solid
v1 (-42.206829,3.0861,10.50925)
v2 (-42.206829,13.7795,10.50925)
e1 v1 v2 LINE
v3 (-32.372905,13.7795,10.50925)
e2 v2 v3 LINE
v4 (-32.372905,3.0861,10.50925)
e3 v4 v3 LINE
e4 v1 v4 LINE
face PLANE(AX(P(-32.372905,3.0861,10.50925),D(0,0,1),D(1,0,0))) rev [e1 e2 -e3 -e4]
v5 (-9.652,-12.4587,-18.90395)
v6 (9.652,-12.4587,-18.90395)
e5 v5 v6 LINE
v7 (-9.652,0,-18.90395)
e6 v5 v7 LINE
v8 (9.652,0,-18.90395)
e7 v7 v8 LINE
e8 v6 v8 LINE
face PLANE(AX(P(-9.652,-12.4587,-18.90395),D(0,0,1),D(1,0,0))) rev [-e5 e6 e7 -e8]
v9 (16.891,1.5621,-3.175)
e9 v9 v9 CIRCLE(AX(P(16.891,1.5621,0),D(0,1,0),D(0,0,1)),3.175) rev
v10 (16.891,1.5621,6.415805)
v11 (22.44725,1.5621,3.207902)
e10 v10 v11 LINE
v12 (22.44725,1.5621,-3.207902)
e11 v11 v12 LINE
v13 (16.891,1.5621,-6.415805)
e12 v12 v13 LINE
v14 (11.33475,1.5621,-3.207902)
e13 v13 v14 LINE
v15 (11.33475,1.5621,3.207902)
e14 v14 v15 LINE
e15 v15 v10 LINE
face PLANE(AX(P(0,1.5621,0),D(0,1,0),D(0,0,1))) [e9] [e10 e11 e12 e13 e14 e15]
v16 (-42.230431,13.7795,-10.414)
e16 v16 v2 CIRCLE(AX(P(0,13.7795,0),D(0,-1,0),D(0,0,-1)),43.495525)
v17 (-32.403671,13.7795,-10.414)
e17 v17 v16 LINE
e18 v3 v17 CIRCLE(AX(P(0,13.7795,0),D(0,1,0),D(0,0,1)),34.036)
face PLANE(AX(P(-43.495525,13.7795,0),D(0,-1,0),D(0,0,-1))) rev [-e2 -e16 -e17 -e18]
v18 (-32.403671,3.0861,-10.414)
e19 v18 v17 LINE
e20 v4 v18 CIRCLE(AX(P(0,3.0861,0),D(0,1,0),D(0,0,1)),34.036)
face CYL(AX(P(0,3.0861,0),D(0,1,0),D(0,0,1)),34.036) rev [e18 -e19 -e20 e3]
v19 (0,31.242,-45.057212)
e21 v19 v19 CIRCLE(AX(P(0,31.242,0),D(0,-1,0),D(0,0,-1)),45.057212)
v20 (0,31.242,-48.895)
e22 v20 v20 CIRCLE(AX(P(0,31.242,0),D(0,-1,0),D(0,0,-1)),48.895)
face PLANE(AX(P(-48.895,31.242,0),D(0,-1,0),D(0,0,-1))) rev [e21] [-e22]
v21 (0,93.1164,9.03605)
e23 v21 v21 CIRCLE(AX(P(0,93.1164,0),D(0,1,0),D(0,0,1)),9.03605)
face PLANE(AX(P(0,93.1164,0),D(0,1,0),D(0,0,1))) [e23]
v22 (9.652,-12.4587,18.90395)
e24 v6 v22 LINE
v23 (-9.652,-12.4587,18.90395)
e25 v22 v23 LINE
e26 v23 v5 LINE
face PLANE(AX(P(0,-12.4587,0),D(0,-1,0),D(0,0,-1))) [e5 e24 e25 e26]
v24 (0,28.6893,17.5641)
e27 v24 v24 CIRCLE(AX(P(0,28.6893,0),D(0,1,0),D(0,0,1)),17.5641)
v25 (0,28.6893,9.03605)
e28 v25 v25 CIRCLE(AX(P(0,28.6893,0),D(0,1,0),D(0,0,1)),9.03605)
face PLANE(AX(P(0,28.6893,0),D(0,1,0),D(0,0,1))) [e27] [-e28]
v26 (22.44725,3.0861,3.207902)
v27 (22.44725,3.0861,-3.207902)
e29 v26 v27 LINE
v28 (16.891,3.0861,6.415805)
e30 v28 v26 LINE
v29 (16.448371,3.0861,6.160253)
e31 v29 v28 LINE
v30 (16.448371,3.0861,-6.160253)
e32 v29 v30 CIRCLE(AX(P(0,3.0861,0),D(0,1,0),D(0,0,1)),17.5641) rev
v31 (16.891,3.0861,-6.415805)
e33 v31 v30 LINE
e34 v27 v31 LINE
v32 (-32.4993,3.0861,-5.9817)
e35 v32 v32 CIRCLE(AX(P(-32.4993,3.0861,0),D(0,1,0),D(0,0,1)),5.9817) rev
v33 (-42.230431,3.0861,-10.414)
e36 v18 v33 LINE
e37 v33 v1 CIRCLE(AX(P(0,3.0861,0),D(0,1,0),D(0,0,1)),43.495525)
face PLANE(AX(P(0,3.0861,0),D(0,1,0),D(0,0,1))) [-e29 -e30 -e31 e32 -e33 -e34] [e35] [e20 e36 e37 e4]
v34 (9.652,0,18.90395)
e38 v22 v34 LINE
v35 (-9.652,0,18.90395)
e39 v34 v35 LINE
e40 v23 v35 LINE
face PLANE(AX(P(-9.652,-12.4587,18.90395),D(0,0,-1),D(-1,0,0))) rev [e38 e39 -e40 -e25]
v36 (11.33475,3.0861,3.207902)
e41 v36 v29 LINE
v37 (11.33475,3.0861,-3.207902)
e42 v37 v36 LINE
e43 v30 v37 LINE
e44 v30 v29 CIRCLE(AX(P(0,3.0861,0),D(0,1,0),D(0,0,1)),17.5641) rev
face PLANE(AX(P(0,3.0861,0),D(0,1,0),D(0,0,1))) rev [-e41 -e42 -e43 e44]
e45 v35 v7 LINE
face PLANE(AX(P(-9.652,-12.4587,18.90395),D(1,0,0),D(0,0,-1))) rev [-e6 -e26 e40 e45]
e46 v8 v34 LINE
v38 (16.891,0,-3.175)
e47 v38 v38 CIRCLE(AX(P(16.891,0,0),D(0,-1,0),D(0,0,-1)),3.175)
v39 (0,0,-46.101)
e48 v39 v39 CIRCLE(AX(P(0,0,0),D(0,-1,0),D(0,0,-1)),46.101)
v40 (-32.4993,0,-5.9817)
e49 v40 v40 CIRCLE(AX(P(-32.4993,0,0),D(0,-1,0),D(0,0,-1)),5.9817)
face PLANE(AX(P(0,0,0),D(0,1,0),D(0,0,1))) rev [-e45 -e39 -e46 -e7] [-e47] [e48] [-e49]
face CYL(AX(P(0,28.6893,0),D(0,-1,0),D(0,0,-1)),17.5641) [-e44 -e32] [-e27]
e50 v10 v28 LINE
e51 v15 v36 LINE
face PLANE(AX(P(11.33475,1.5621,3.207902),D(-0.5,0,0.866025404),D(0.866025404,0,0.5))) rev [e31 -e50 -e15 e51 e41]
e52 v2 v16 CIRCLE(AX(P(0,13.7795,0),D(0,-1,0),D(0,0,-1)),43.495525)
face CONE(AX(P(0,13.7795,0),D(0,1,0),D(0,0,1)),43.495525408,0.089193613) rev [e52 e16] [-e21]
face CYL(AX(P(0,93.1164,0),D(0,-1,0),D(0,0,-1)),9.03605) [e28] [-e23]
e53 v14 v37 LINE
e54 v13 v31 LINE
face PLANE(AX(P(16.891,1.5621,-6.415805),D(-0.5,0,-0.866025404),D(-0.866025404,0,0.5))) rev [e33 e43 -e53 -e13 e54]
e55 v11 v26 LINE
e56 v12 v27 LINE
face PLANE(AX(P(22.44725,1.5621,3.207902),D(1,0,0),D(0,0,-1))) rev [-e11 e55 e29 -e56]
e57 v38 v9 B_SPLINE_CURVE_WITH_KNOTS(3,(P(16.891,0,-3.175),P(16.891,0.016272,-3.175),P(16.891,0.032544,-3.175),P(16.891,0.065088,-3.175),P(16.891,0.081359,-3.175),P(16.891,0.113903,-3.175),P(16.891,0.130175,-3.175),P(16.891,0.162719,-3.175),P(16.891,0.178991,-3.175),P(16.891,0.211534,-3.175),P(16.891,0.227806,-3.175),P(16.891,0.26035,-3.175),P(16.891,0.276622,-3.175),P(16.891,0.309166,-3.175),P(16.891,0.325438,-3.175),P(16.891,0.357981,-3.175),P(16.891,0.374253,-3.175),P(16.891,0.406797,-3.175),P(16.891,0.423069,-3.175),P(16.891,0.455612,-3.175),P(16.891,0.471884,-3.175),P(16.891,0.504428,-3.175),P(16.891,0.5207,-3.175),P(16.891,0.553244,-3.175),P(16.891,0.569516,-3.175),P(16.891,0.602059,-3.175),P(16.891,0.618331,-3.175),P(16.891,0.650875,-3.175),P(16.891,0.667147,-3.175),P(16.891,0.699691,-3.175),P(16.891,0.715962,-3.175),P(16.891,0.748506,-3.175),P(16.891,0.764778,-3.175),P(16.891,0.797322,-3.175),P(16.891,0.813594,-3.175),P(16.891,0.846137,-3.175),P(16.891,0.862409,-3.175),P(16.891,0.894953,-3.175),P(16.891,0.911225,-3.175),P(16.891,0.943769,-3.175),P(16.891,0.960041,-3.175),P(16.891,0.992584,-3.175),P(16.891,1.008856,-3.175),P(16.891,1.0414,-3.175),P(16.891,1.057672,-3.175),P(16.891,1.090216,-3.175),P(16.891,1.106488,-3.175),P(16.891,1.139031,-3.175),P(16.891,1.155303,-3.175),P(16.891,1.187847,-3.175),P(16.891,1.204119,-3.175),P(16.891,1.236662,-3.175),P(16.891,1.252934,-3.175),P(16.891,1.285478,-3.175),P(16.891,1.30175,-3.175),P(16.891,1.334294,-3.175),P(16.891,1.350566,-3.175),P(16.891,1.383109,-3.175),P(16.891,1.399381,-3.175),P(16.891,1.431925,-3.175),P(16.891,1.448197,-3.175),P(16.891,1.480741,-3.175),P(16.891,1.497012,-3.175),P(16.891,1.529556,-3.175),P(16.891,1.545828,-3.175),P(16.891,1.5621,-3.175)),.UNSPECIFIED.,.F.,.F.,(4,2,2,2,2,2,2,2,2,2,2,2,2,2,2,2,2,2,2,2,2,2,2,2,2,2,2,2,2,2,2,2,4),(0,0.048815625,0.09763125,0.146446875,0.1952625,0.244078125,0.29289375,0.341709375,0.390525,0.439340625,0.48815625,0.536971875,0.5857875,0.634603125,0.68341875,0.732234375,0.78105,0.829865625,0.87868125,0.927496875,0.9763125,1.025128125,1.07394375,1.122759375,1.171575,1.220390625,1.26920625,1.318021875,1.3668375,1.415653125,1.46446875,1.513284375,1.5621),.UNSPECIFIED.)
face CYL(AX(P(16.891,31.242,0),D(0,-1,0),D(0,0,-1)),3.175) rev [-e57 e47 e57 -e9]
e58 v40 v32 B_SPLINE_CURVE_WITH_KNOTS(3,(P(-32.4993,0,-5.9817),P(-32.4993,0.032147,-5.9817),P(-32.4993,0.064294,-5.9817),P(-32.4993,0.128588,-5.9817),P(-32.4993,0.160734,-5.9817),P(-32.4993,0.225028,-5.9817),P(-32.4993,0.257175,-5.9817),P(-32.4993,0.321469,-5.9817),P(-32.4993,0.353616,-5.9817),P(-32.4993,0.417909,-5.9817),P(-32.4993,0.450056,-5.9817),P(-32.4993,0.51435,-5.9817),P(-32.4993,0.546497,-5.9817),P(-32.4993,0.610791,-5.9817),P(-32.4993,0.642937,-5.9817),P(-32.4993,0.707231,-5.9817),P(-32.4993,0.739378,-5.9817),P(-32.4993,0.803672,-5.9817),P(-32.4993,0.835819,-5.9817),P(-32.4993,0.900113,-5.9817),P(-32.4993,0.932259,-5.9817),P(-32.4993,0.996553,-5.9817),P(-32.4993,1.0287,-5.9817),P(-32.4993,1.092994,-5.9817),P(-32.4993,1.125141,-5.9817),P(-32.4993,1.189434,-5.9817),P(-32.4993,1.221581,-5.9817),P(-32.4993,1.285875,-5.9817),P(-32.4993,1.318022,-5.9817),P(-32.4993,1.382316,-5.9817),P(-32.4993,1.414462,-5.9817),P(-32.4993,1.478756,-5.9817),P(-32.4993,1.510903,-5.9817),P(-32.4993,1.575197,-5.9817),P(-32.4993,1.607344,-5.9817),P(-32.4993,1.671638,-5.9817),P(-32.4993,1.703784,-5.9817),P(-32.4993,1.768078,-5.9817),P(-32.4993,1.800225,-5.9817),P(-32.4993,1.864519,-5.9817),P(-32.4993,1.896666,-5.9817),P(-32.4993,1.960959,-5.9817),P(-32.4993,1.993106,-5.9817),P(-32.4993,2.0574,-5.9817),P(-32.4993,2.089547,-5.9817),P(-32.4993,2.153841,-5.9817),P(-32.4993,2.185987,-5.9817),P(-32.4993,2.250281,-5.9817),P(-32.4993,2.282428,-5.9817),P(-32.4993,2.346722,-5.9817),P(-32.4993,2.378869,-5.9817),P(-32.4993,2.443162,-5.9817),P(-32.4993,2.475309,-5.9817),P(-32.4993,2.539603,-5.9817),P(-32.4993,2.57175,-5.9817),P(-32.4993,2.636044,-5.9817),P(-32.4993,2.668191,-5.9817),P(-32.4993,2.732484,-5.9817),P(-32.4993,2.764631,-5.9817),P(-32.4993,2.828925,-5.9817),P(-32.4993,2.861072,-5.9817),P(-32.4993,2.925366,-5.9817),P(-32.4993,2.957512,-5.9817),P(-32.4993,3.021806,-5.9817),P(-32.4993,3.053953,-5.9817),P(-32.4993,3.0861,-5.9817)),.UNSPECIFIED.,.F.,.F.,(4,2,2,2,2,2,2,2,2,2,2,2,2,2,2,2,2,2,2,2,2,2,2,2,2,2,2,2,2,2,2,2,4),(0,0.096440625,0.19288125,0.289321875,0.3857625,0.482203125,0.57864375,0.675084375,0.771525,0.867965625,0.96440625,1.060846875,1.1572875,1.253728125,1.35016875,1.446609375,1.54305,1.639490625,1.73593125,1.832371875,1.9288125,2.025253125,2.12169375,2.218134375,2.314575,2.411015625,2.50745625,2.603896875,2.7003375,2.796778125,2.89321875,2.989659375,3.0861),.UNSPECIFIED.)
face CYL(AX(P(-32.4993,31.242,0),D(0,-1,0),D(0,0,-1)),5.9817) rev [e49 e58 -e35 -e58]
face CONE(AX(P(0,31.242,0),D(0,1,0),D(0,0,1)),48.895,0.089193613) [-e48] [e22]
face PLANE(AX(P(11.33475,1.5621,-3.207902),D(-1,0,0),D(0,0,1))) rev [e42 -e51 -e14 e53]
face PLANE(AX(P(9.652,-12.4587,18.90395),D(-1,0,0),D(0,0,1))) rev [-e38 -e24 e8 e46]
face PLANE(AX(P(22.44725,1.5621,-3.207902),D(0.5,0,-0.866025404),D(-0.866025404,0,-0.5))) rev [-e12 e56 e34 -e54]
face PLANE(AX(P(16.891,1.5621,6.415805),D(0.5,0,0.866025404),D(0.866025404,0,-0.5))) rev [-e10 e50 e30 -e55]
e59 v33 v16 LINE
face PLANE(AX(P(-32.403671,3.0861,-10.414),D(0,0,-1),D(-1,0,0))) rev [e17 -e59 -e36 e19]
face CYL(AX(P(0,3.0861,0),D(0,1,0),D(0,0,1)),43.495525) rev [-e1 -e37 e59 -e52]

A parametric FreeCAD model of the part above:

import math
import FreeCAD as App
import Part
import Sketcher

V = App.Vector
Q = App.Units.Quantity


def add_polygon(sketch, points):
    """Adds a closed chain of lines whose ends are joined by coincident constraints."""
    first, n = sketch.GeometryCount, len(points)
    for a, b in zip(points, points[1:] + points[:1]):
        sketch.addGeometry(Part.LineSegment(App.Vector(*a, 0), App.Vector(*b, 0)), False)
    for i in range(n):
        sketch.addConstraint(Sketcher.Constraint("Coincident", first + i, 2, first + (i + 1) % n, 1))

doc = App.newDocument("Part")
body = doc.addObject("PartDesign::Body", "Body")

# Sketch on XY plane
sketch1 = body.newObject("Sketcher::SketchObject", "Sketch")
sketch1.AttachmentSupport = (doc.getObject("XY_Plane"), [""])
sketch1.MapMode = "FlatFace"
add_polygon(sketch1, [(-46.1, 0), (0, 0), (0, 13.8), (-43.5, 13.8), (-45.1, 31.2), (-48.9, 31.2)])  # lines 0-5
sketch1.addConstraint([
    Sketcher.Constraint("Horizontal", 0),
    Sketcher.Constraint("Vertical", 1),
    Sketcher.Constraint("Horizontal", 2),
    Sketcher.Constraint("Horizontal", 4),
    Sketcher.Constraint("Coincident", 0, 2, -1, 1),
    Sketcher.Constraint("Parallel", 3, 5),
    Sketcher.Constraint("DistanceX", 0, 1, 0, 2, Q("1.815 in")),
    Sketcher.Constraint("DistanceY", -1, 1, 3, 2, Q("1.23 in")),
    Sketcher.Constraint("DistanceX", 4, 2, 5, 2, Q("0.11 in")),
    Sketcher.Constraint("DistanceY", 1, 1, 1, 2, Q("0.5425 in")),
    Sketcher.Constraint("DistanceX", 2, 2, 2, 1, Q("43.495525 mm")),
])
revolution = body.newObject("PartDesign::Revolution", "Revolution")
revolution.Profile = sketch1
revolution.ReferenceAxis = (sketch1, ["V_Axis"])
revolution.Angle = 360

# Sketch on XZ plane
sketch2 = body.newObject("Sketcher::SketchObject", "Sketch001")
sketch2.AttachmentSupport = (doc.getObject("XZ_Plane"), [""])
sketch2.MapMode = "FlatFace"
sketch2.addGeometry([
    Part.Circle(V(16.9, 0, 0), V(0, 0, 1), 3.2),
    Part.Circle(V(-32.5, 0, 0), V(0, 0, 1), 6),
], False)
sketch2.addConstraint([
    Sketcher.Constraint("PointOnObject", 0, 3, -1),
    Sketcher.Constraint("PointOnObject", 1, 3, -1),
    Sketcher.Constraint("Diameter", 0, Q("0.25 in")),
    Sketcher.Constraint("Diameter", 1, Q("0.471 in")),
    Sketcher.Constraint("DistanceX", -1, 1, 0, 3, Q("0.665 in")),
    Sketcher.Constraint("DistanceX", 1, 3, -1, 1, Q("1.2795 in")),
])
pocket1 = body.newObject("PartDesign::Pocket", "Pocket")
pocket1.Profile = sketch2
pocket1.Type = "ThroughAll"

# Sketch on XZ plane
sketch3 = body.newObject("Sketcher::SketchObject", "Sketch002")
sketch3.AttachmentSupport = (doc.getObject("XZ_Plane"), [""])
sketch3.MapMode = "FlatFace"
sketch3.AttachmentOffset = App.Placement(V(0, 0, -0.5425 * 25.4), App.Rotation())
sketch3.addGeometry([
    Part.LineSegment(V(-42, 11, 0), V(-32, 11, 0)),
    Part.ArcOfCircle(Part.Circle(V(0, 0, 0), V(0, 0, 1), 34), math.radians(-162), math.radians(162)),
    Part.LineSegment(V(-32, -10, 0), V(-42, -10, 0)),
    Part.ArcOfCircle(Part.Circle(V(0, 0, 0), V(0, 0, 1), 43), math.radians(166), math.radians(194)),
], False)
sketch3.addConstraint([
    Sketcher.Constraint("Coincident", 0, 2, 1, 2),
    Sketcher.Constraint("Coincident", 1, 1, 2, 1),
    Sketcher.Constraint("Coincident", 2, 2, 3, 2),
    Sketcher.Constraint("Coincident", 3, 1, 0, 1),
    Sketcher.Constraint("Horizontal", 0),
    Sketcher.Constraint("Horizontal", 2),
    Sketcher.Constraint("Coincident", 1, 3, -1, 1),
    Sketcher.Constraint("Coincident", 3, 3, -1, 1),
    Sketcher.Constraint("Radius", 1, Q("1.34 in")),
    Sketcher.Constraint("DistanceY", 1, 1, -1, 1, Q("0.41 in")),
    Sketcher.Constraint("Radius", 3, Q("43.495525 mm")),
    Sketcher.Constraint("DistanceX", 0, 1, 0, 2, Q("9.833924 mm")),
])
pocket2 = body.newObject("PartDesign::Pocket", "Pocket001")
pocket2.Profile = sketch3
pocket2.Length = Q("0.421 in")
pocket2.Reversed = True

# Sketch on XZ plane
sketch4 = body.newObject("Sketcher::SketchObject", "Sketch003")
sketch4.AttachmentSupport = (doc.getObject("XZ_Plane"), [""])
sketch4.MapMode = "FlatFace"
add_polygon(sketch4, [(-10, 19), (-10, -19), (10, -19), (10, 19)])  # lines 0-3
sketch4.addConstraint([
    Sketcher.Constraint("Vertical", 0),
    Sketcher.Constraint("Horizontal", 1),
    Sketcher.Constraint("Vertical", 2),
    Sketcher.Constraint("Horizontal", 3),
    Sketcher.Constraint("Symmetric", 0, 2, 2, 2, -1, 1),
    Sketcher.Constraint("DistanceX", 1, 1, 1, 2, Q("0.76 in")),
    Sketcher.Constraint("DistanceY", 0, 2, 0, 1, Q("1.4885 in")),
])
pad1 = body.newObject("PartDesign::Pad", "Pad")
pad1.Profile = sketch4
pad1.Length = Q("0.4905 in")

# Sketch on XZ plane
sketch5 = body.newObject("Sketcher::SketchObject", "Sketch004")
sketch5.AttachmentSupport = (doc.getObject("XZ_Plane"), [""])
sketch5.MapMode = "FlatFace"
sketch5.AttachmentOffset = App.Placement(V(0, 0, -0.1215 * 25.4), App.Rotation())
sketch5.addGeometry(Part.Circle(V(0, 0, 0), V(0, 0, 1), 18), False)
sketch5.addConstraint([
    Sketcher.Constraint("Coincident", 0, 3, -1, 1),
    Sketcher.Constraint("Diameter", 0, Q("1.383 in")),
])
pad2 = body.newObject("PartDesign::Pad", "Pad001")
pad2.Profile = sketch5
pad2.Length = Q("1.008 in")
pad2.Reversed = True

# Sketch on XZ plane
sketch6 = body.newObject("Sketcher::SketchObject", "Sketch005")
sketch6.AttachmentSupport = (doc.getObject("XZ_Plane"), [""])
sketch6.MapMode = "FlatFace"
sketch6.AttachmentOffset = App.Placement(V(0, 0, -1.1295 * 25.4), App.Rotation())
sketch6.addGeometry(Part.Circle(V(0, 0, 0), V(0, 0, 1), 9), False)
sketch6.addConstraint([
    Sketcher.Constraint("Coincident", 0, 3, -1, 1),
    Sketcher.Constraint("Diameter", 0, Q("0.7115 in")),
])
pad3 = body.newObject("PartDesign::Pad", "Pad002")
pad3.Profile = sketch6
pad3.Length = Q("2.5365 in")
pad3.Reversed = True

# Sketch on XZ plane
sketch7 = body.newObject("Sketcher::SketchObject", "Sketch006")
sketch7.AttachmentSupport = (doc.getObject("XZ_Plane"), [""])
sketch7.MapMode = "FlatFace"
sketch7.AttachmentOffset = App.Placement(V(0, 0, -0.1215 * 25.4), App.Rotation())
add_polygon(sketch7, [(22, 3), (22, -3), (17, -6), (11, -3), (11, 3), (17, 6)])  # lines 0-5
sketch7.addConstraint([
    Sketcher.Constraint("Vertical", 0),
    Sketcher.Constraint("Vertical", 3),
    Sketcher.Constraint("Symmetric", 1, 2, 4, 2, -1),
    Sketcher.Constraint("Parallel", 1, 4),
    Sketcher.Constraint("Parallel", 2, 5),
    Sketcher.Constraint("Horizontal", 0, 2, 2, 2),
    Sketcher.Constraint("Horizontal", 3, 2, 5, 2),
    Sketcher.Constraint("Angle", 1, Q("-150 deg")),
    Sketcher.Constraint("DistanceX", -1, 1, 1, 2, Q("0.665 in")),
    Sketcher.Constraint("DistanceX", 1, 2, 0, 2, Q("0.21875 in")),
    Sketcher.Constraint("DistanceY", 0, 2, 0, 1, Q("6.415805 mm")),
])
pocket3 = body.newObject("PartDesign::Pocket", "Pocket002")
pocket3.Profile = sketch7
pocket3.Length = Q("0.06 in")
pocket3.Reversed = True

doc.recompute()
